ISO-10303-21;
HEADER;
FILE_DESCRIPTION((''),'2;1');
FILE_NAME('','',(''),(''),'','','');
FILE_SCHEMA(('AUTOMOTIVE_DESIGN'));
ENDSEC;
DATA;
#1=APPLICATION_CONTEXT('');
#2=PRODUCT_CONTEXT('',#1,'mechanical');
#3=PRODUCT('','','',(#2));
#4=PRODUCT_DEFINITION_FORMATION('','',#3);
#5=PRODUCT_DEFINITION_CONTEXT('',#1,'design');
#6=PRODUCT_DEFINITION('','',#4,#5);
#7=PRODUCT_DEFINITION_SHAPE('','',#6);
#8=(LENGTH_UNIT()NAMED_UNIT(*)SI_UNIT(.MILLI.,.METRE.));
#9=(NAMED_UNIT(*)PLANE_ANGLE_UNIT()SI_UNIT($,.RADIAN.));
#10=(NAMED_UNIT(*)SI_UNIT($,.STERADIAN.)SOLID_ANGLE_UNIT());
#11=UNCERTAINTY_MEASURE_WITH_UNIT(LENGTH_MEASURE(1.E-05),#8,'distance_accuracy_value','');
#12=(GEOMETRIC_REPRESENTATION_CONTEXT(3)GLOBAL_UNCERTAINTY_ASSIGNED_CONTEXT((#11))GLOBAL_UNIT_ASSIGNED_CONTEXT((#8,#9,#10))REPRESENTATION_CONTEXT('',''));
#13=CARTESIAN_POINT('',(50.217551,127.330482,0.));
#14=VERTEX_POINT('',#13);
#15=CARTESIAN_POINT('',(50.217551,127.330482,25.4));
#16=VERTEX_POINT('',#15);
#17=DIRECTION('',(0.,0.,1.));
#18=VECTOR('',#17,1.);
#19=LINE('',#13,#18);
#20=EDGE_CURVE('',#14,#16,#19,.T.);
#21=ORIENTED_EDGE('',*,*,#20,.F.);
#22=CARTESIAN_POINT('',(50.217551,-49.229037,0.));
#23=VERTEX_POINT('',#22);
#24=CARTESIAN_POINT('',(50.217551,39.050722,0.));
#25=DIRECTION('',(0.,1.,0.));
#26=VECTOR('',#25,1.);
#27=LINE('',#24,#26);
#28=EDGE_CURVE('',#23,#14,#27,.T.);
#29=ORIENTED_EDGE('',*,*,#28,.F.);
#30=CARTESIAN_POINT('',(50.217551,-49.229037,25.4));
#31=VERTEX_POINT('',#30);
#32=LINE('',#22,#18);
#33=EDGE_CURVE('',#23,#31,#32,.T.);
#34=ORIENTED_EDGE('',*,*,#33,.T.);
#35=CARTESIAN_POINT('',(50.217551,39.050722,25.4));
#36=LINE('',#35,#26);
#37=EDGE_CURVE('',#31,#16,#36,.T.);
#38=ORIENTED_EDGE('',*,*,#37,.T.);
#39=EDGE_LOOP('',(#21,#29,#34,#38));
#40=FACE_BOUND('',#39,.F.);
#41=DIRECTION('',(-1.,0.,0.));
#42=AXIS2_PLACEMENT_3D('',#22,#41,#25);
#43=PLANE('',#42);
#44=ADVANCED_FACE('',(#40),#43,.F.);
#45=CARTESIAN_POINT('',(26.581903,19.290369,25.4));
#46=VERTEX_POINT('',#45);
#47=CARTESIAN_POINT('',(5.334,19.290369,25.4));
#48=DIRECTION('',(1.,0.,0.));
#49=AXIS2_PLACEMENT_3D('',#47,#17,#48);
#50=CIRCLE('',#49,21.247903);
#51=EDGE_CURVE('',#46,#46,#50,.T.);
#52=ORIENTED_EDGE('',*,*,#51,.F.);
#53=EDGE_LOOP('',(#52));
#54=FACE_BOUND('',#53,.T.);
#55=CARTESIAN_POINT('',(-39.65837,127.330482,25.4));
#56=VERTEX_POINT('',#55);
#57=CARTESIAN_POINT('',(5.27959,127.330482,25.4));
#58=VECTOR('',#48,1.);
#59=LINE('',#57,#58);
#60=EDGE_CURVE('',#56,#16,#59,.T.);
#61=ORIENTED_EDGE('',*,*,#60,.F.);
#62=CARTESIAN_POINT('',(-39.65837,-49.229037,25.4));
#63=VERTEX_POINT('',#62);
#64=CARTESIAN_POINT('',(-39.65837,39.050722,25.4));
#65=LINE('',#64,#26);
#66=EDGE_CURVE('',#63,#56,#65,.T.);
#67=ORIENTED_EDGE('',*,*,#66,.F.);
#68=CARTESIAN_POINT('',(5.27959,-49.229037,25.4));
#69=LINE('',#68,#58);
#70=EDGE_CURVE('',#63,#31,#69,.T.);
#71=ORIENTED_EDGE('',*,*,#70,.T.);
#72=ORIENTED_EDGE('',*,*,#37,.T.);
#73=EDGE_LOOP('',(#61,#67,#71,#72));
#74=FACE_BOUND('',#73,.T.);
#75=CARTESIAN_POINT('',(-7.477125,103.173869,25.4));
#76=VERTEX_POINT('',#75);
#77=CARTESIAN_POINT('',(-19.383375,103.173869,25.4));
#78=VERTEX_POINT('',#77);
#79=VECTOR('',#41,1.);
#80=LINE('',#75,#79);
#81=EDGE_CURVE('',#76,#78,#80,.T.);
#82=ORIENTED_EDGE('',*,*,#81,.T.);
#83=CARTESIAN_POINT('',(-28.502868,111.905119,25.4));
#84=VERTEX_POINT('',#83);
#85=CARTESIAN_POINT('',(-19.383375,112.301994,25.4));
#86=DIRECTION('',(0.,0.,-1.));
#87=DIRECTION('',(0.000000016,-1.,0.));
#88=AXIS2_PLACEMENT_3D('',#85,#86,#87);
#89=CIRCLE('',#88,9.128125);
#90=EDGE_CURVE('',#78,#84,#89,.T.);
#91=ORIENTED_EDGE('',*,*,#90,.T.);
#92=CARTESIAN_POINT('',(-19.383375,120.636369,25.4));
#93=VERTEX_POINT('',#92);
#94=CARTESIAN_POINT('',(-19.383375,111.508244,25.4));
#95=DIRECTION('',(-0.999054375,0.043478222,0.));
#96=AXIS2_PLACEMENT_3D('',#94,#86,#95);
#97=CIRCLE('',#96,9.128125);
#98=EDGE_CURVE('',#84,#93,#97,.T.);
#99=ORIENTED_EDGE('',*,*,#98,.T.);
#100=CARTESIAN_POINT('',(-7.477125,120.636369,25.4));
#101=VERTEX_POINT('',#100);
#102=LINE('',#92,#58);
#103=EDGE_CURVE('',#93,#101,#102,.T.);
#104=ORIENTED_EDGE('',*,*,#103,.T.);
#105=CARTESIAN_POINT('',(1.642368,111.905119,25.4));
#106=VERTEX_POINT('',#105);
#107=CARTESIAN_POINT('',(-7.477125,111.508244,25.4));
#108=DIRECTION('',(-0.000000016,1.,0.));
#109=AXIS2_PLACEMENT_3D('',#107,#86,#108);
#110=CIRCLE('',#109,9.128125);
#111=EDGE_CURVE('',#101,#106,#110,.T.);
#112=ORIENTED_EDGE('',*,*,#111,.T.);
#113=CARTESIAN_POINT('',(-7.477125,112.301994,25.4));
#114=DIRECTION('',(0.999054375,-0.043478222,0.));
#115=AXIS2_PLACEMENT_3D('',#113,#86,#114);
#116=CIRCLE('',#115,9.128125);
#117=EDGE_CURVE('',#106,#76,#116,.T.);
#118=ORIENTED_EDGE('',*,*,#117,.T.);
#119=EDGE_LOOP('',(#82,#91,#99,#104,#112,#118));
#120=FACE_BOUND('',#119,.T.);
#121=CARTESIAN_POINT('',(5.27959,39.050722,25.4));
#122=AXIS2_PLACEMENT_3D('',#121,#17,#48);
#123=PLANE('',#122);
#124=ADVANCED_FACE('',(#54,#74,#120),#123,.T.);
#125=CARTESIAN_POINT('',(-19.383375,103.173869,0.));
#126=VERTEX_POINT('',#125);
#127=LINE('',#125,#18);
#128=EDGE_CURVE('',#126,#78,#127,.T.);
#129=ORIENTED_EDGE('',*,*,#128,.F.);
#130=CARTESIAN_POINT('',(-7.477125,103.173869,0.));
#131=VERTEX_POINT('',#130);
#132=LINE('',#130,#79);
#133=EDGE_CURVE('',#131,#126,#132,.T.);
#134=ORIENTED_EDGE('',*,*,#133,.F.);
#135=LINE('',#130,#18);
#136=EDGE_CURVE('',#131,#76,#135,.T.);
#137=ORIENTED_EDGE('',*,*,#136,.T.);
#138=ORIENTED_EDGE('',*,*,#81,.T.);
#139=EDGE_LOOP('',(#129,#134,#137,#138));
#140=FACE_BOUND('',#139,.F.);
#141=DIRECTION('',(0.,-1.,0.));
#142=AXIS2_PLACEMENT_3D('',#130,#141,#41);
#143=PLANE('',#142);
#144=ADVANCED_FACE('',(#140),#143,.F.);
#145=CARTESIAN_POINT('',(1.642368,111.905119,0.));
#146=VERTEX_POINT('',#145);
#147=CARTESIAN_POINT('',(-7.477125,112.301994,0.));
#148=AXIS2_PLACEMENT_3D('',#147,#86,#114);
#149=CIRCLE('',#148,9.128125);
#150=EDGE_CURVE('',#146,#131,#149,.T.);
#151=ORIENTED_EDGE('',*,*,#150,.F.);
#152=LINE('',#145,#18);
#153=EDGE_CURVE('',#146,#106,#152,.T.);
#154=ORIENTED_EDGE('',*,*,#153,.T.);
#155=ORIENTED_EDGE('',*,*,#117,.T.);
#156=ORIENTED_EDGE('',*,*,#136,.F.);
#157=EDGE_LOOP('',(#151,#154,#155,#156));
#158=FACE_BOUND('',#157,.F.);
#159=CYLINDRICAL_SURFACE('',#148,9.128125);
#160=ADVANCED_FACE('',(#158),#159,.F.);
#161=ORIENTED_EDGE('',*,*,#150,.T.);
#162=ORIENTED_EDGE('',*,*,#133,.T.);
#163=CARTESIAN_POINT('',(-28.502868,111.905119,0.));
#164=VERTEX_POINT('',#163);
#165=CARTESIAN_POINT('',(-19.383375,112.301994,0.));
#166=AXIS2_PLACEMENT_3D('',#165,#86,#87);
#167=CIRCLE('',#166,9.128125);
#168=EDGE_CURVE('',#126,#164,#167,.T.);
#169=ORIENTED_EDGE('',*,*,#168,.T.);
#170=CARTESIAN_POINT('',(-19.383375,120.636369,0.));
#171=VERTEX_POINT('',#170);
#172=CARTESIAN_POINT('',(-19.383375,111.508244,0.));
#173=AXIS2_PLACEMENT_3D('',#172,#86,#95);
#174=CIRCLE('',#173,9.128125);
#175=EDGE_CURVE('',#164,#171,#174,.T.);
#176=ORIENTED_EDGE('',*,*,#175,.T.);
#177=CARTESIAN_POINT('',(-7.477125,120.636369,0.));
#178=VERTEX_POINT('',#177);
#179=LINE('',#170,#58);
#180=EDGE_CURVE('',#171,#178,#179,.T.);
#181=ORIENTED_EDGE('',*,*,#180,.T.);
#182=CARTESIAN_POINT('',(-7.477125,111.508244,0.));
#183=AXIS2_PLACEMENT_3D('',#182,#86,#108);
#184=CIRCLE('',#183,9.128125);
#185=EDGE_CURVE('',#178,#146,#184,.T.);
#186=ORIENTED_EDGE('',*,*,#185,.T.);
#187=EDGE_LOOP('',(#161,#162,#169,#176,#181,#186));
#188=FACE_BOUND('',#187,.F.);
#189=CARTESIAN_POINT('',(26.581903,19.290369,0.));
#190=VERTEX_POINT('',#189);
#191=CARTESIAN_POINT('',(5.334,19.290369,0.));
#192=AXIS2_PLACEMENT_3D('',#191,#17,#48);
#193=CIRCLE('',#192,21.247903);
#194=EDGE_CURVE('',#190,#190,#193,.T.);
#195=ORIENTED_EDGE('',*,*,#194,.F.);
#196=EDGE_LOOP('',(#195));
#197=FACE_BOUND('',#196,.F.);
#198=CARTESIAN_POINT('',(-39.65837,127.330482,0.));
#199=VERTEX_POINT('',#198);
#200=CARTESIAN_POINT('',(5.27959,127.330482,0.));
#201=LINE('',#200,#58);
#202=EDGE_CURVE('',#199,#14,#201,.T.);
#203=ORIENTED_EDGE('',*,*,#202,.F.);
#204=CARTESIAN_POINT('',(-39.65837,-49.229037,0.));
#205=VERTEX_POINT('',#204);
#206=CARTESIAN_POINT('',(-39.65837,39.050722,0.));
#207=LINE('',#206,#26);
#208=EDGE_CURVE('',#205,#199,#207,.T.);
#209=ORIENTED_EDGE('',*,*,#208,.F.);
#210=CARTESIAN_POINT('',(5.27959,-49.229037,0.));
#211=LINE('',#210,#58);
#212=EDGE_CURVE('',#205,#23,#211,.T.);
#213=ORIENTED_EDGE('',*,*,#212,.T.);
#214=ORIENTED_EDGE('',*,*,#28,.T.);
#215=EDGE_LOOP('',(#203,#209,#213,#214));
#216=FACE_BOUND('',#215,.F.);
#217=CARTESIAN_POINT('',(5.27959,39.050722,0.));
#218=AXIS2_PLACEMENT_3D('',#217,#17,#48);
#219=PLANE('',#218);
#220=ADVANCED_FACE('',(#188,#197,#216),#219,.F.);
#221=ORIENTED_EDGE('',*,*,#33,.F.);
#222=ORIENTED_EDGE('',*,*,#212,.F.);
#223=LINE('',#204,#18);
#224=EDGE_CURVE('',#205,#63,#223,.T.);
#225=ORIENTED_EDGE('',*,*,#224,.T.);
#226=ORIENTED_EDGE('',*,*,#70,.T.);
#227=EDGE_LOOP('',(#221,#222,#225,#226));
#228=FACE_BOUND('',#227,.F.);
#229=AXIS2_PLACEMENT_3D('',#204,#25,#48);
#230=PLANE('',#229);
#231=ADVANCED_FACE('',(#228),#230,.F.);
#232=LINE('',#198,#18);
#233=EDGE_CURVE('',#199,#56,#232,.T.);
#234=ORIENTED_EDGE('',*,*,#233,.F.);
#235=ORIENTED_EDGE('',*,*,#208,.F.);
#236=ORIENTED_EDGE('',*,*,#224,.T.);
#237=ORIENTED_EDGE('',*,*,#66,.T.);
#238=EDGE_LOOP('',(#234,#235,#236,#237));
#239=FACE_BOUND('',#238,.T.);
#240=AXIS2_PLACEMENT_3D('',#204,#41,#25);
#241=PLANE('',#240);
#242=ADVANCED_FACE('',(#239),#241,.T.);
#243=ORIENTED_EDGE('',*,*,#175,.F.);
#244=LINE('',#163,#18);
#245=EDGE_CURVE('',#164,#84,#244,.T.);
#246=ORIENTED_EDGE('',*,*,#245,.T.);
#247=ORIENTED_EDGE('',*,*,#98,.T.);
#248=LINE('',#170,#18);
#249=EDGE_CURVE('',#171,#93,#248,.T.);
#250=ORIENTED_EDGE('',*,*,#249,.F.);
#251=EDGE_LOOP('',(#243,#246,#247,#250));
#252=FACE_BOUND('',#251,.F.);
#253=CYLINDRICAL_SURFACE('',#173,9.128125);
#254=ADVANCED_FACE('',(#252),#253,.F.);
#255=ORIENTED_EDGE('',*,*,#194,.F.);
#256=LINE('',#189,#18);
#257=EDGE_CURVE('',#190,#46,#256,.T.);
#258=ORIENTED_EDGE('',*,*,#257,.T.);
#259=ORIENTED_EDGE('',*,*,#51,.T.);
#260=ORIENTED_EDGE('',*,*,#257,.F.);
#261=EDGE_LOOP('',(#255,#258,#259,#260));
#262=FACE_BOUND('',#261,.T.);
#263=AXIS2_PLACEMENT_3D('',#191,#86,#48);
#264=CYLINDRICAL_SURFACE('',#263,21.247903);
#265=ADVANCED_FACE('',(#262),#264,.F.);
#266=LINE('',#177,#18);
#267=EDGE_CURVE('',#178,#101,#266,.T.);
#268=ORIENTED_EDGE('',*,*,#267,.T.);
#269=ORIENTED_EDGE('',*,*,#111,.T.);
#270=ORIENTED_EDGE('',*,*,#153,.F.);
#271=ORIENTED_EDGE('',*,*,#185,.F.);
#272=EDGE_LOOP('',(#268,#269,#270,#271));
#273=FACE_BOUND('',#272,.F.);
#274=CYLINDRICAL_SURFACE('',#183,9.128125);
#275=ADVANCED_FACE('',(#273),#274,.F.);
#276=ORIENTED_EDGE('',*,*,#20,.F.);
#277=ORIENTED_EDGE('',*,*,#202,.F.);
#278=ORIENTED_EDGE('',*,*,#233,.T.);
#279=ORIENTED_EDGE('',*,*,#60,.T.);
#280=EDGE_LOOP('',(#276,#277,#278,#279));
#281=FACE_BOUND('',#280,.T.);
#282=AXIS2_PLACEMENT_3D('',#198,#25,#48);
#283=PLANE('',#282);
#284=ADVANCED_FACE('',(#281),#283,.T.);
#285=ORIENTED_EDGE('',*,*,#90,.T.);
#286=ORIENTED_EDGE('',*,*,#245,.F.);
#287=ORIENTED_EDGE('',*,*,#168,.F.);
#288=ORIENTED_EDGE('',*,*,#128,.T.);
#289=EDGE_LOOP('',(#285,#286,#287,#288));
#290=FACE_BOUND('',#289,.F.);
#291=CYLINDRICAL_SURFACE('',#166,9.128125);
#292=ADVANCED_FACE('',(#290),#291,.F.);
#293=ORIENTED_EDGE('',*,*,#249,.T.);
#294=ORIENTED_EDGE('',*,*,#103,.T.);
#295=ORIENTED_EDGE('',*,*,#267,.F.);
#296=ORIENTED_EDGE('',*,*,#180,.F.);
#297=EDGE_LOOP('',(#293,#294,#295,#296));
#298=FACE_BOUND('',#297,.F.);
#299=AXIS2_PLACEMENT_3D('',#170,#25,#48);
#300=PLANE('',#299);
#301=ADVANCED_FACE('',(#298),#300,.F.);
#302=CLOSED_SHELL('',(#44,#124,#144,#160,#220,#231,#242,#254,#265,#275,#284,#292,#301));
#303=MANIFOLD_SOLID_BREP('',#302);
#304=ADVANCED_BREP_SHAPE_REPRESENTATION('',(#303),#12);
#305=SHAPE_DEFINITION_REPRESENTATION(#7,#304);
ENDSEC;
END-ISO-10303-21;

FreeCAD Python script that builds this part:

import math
import FreeCAD as App
import Part
import Sketcher

V = App.Vector
Q = App.Units.Quantity


def add_polygon(sketch, points):
    """Adds a closed chain of lines whose ends are joined by coincident constraints."""
    first, n = sketch.GeometryCount, len(points)
    for a, b in zip(points, points[1:] + points[:1]):
        sketch.addGeometry(Part.LineSegment(App.Vector(*a, 0), App.Vector(*b, 0)), False)
    for i in range(n):
        sketch.addConstraint(Sketcher.Constraint("Coincident", first + i, 2, first + (i + 1) % n, 1))

doc = App.newDocument("Part")
params = doc.addObject("Spreadsheet::Sheet", "Params")
for row, (alias, value) in enumerate([
    ("sketch1_radius", "0.359375 in"),
    ("sketch1_width", "0.46875 in"),
    ("pad1_length", "1 in"),
], start=1):
    params.set(f"A{row}", alias)
    params.set(f"B{row}", "=" + value)
    params.setAlias(f"B{row}", alias)

body = doc.addObject("PartDesign::Body", "Body")

sketch1 = body.newObject("Sketcher::SketchObject", "Sketch")
sketch1.AttachmentSupport = (doc.getObject("XY_Plane"), [""])
sketch1.MapMode = "FlatFace"
add_polygon(sketch1, [(-40, 127), (-40, -49), (50, -49), (50, 127)])
sketch1.addGeometry(Part.Circle(V(5, 19, 0), V(0, 0, 1), 21), False)
sketch1.addGeometry(Part.ArcOfCircle(Part.Circle(V(-7, 112, 0), V(0, 0, 1), 9), math.radians(-90), math.radians(-2)), False)
sketch1.addGeometry(Part.LineSegment(V(-7, 103, 0), V(-19, 103, 0)), False)
sketch1.addGeometry(Part.ArcOfCircle(Part.Circle(V(-19, 112, 0), V(0, 0, 1), 9), math.radians(-178), math.radians(-90)), False)
sketch1.addGeometry(Part.ArcOfCircle(Part.Circle(V(-19, 112, 0), V(0, 0, 1), 9), math.radians(90), math.radians(178)), False)
sketch1.addGeometry(Part.LineSegment(V(-19, 121, 0), V(-7, 121, 0)), False)
sketch1.addGeometry(Part.ArcOfCircle(Part.Circle(V(-7, 112, 0), V(0, 0, 1), 9), math.radians(2), math.radians(90)), False)
sketch1.addConstraint([
    Sketcher.Constraint("Tangent", 5, 1, 6, 1),
    Sketcher.Constraint("Tangent", 6, 2, 7, 2),
    Sketcher.Constraint("Coincident", 7, 1, 8, 2),
    Sketcher.Constraint("Tangent", 8, 1, 9, 1),
    Sketcher.Constraint("Tangent", 9, 2, 10, 2),
    Sketcher.Constraint("Coincident", 10, 1, 5, 2),
    Sketcher.Constraint("Vertical", 0),
    Sketcher.Constraint("Horizontal", 1),
    Sketcher.Constraint("Vertical", 2),
    Sketcher.Constraint("Horizontal", 3),
    Sketcher.Constraint("Horizontal", 6),
    Sketcher.Constraint("Horizontal", 9),
    Sketcher.Constraint("Equal", 5, 7),
    Sketcher.Constraint("Equal", 7, 8),
    Sketcher.Constraint("Equal", 8, 10),
    Sketcher.Constraint("Horizontal", 7, 1, 10, 1),
    Sketcher.Constraint("Vertical", 7, 3, 8, 3),
    Sketcher.Constraint("Radius", 5, Q("0.359375 in")),
    Sketcher.Constraint("DistanceX", 6, 2, 6, 1, Q("0.46875 in")),
    Sketcher.Constraint("DistanceX", -1, 1, 4, 3, Q("0.21 in")),
    Sketcher.Constraint("DistanceY", 8, 3, 7, 3, Q("0.03125 in")),
    Sketcher.Constraint("Diameter", 4, Q("42.495806 mm")),
    Sketcher.Constraint("DistanceX", 1, 1, 1, 2, Q("89.875921 mm")),
    Sketcher.Constraint("DistanceY", 0, 2, 0, 1, Q("176.559519 mm")),
    Sketcher.Constraint("DistanceY", -1, 1, 4, 3, Q("19.290369 mm")),
    Sketcher.Constraint("DistanceX", 0, 2, -1, 1, Q("39.65837 mm")),
    Sketcher.Constraint("DistanceY", -1, 1, 2, 2, Q("127.330482 mm")),
    Sketcher.Constraint("DistanceY", -1, 1, 5, 1, Q("103.173869 mm")),
    Sketcher.Constraint("DistanceX", 5, 3, -1, 1, Q("7.477125 mm")),
])
sketch1.setExpression("Constraints[21]", "Params.sketch1_radius")
sketch1.setExpression("Constraints[22]", "Params.sketch1_width")
pad1 = body.newObject("PartDesign::Pad", "Pad")
pad1.Profile = sketch1
pad1.setExpression("Length", "Params.pad1_length")

doc.recompute()
